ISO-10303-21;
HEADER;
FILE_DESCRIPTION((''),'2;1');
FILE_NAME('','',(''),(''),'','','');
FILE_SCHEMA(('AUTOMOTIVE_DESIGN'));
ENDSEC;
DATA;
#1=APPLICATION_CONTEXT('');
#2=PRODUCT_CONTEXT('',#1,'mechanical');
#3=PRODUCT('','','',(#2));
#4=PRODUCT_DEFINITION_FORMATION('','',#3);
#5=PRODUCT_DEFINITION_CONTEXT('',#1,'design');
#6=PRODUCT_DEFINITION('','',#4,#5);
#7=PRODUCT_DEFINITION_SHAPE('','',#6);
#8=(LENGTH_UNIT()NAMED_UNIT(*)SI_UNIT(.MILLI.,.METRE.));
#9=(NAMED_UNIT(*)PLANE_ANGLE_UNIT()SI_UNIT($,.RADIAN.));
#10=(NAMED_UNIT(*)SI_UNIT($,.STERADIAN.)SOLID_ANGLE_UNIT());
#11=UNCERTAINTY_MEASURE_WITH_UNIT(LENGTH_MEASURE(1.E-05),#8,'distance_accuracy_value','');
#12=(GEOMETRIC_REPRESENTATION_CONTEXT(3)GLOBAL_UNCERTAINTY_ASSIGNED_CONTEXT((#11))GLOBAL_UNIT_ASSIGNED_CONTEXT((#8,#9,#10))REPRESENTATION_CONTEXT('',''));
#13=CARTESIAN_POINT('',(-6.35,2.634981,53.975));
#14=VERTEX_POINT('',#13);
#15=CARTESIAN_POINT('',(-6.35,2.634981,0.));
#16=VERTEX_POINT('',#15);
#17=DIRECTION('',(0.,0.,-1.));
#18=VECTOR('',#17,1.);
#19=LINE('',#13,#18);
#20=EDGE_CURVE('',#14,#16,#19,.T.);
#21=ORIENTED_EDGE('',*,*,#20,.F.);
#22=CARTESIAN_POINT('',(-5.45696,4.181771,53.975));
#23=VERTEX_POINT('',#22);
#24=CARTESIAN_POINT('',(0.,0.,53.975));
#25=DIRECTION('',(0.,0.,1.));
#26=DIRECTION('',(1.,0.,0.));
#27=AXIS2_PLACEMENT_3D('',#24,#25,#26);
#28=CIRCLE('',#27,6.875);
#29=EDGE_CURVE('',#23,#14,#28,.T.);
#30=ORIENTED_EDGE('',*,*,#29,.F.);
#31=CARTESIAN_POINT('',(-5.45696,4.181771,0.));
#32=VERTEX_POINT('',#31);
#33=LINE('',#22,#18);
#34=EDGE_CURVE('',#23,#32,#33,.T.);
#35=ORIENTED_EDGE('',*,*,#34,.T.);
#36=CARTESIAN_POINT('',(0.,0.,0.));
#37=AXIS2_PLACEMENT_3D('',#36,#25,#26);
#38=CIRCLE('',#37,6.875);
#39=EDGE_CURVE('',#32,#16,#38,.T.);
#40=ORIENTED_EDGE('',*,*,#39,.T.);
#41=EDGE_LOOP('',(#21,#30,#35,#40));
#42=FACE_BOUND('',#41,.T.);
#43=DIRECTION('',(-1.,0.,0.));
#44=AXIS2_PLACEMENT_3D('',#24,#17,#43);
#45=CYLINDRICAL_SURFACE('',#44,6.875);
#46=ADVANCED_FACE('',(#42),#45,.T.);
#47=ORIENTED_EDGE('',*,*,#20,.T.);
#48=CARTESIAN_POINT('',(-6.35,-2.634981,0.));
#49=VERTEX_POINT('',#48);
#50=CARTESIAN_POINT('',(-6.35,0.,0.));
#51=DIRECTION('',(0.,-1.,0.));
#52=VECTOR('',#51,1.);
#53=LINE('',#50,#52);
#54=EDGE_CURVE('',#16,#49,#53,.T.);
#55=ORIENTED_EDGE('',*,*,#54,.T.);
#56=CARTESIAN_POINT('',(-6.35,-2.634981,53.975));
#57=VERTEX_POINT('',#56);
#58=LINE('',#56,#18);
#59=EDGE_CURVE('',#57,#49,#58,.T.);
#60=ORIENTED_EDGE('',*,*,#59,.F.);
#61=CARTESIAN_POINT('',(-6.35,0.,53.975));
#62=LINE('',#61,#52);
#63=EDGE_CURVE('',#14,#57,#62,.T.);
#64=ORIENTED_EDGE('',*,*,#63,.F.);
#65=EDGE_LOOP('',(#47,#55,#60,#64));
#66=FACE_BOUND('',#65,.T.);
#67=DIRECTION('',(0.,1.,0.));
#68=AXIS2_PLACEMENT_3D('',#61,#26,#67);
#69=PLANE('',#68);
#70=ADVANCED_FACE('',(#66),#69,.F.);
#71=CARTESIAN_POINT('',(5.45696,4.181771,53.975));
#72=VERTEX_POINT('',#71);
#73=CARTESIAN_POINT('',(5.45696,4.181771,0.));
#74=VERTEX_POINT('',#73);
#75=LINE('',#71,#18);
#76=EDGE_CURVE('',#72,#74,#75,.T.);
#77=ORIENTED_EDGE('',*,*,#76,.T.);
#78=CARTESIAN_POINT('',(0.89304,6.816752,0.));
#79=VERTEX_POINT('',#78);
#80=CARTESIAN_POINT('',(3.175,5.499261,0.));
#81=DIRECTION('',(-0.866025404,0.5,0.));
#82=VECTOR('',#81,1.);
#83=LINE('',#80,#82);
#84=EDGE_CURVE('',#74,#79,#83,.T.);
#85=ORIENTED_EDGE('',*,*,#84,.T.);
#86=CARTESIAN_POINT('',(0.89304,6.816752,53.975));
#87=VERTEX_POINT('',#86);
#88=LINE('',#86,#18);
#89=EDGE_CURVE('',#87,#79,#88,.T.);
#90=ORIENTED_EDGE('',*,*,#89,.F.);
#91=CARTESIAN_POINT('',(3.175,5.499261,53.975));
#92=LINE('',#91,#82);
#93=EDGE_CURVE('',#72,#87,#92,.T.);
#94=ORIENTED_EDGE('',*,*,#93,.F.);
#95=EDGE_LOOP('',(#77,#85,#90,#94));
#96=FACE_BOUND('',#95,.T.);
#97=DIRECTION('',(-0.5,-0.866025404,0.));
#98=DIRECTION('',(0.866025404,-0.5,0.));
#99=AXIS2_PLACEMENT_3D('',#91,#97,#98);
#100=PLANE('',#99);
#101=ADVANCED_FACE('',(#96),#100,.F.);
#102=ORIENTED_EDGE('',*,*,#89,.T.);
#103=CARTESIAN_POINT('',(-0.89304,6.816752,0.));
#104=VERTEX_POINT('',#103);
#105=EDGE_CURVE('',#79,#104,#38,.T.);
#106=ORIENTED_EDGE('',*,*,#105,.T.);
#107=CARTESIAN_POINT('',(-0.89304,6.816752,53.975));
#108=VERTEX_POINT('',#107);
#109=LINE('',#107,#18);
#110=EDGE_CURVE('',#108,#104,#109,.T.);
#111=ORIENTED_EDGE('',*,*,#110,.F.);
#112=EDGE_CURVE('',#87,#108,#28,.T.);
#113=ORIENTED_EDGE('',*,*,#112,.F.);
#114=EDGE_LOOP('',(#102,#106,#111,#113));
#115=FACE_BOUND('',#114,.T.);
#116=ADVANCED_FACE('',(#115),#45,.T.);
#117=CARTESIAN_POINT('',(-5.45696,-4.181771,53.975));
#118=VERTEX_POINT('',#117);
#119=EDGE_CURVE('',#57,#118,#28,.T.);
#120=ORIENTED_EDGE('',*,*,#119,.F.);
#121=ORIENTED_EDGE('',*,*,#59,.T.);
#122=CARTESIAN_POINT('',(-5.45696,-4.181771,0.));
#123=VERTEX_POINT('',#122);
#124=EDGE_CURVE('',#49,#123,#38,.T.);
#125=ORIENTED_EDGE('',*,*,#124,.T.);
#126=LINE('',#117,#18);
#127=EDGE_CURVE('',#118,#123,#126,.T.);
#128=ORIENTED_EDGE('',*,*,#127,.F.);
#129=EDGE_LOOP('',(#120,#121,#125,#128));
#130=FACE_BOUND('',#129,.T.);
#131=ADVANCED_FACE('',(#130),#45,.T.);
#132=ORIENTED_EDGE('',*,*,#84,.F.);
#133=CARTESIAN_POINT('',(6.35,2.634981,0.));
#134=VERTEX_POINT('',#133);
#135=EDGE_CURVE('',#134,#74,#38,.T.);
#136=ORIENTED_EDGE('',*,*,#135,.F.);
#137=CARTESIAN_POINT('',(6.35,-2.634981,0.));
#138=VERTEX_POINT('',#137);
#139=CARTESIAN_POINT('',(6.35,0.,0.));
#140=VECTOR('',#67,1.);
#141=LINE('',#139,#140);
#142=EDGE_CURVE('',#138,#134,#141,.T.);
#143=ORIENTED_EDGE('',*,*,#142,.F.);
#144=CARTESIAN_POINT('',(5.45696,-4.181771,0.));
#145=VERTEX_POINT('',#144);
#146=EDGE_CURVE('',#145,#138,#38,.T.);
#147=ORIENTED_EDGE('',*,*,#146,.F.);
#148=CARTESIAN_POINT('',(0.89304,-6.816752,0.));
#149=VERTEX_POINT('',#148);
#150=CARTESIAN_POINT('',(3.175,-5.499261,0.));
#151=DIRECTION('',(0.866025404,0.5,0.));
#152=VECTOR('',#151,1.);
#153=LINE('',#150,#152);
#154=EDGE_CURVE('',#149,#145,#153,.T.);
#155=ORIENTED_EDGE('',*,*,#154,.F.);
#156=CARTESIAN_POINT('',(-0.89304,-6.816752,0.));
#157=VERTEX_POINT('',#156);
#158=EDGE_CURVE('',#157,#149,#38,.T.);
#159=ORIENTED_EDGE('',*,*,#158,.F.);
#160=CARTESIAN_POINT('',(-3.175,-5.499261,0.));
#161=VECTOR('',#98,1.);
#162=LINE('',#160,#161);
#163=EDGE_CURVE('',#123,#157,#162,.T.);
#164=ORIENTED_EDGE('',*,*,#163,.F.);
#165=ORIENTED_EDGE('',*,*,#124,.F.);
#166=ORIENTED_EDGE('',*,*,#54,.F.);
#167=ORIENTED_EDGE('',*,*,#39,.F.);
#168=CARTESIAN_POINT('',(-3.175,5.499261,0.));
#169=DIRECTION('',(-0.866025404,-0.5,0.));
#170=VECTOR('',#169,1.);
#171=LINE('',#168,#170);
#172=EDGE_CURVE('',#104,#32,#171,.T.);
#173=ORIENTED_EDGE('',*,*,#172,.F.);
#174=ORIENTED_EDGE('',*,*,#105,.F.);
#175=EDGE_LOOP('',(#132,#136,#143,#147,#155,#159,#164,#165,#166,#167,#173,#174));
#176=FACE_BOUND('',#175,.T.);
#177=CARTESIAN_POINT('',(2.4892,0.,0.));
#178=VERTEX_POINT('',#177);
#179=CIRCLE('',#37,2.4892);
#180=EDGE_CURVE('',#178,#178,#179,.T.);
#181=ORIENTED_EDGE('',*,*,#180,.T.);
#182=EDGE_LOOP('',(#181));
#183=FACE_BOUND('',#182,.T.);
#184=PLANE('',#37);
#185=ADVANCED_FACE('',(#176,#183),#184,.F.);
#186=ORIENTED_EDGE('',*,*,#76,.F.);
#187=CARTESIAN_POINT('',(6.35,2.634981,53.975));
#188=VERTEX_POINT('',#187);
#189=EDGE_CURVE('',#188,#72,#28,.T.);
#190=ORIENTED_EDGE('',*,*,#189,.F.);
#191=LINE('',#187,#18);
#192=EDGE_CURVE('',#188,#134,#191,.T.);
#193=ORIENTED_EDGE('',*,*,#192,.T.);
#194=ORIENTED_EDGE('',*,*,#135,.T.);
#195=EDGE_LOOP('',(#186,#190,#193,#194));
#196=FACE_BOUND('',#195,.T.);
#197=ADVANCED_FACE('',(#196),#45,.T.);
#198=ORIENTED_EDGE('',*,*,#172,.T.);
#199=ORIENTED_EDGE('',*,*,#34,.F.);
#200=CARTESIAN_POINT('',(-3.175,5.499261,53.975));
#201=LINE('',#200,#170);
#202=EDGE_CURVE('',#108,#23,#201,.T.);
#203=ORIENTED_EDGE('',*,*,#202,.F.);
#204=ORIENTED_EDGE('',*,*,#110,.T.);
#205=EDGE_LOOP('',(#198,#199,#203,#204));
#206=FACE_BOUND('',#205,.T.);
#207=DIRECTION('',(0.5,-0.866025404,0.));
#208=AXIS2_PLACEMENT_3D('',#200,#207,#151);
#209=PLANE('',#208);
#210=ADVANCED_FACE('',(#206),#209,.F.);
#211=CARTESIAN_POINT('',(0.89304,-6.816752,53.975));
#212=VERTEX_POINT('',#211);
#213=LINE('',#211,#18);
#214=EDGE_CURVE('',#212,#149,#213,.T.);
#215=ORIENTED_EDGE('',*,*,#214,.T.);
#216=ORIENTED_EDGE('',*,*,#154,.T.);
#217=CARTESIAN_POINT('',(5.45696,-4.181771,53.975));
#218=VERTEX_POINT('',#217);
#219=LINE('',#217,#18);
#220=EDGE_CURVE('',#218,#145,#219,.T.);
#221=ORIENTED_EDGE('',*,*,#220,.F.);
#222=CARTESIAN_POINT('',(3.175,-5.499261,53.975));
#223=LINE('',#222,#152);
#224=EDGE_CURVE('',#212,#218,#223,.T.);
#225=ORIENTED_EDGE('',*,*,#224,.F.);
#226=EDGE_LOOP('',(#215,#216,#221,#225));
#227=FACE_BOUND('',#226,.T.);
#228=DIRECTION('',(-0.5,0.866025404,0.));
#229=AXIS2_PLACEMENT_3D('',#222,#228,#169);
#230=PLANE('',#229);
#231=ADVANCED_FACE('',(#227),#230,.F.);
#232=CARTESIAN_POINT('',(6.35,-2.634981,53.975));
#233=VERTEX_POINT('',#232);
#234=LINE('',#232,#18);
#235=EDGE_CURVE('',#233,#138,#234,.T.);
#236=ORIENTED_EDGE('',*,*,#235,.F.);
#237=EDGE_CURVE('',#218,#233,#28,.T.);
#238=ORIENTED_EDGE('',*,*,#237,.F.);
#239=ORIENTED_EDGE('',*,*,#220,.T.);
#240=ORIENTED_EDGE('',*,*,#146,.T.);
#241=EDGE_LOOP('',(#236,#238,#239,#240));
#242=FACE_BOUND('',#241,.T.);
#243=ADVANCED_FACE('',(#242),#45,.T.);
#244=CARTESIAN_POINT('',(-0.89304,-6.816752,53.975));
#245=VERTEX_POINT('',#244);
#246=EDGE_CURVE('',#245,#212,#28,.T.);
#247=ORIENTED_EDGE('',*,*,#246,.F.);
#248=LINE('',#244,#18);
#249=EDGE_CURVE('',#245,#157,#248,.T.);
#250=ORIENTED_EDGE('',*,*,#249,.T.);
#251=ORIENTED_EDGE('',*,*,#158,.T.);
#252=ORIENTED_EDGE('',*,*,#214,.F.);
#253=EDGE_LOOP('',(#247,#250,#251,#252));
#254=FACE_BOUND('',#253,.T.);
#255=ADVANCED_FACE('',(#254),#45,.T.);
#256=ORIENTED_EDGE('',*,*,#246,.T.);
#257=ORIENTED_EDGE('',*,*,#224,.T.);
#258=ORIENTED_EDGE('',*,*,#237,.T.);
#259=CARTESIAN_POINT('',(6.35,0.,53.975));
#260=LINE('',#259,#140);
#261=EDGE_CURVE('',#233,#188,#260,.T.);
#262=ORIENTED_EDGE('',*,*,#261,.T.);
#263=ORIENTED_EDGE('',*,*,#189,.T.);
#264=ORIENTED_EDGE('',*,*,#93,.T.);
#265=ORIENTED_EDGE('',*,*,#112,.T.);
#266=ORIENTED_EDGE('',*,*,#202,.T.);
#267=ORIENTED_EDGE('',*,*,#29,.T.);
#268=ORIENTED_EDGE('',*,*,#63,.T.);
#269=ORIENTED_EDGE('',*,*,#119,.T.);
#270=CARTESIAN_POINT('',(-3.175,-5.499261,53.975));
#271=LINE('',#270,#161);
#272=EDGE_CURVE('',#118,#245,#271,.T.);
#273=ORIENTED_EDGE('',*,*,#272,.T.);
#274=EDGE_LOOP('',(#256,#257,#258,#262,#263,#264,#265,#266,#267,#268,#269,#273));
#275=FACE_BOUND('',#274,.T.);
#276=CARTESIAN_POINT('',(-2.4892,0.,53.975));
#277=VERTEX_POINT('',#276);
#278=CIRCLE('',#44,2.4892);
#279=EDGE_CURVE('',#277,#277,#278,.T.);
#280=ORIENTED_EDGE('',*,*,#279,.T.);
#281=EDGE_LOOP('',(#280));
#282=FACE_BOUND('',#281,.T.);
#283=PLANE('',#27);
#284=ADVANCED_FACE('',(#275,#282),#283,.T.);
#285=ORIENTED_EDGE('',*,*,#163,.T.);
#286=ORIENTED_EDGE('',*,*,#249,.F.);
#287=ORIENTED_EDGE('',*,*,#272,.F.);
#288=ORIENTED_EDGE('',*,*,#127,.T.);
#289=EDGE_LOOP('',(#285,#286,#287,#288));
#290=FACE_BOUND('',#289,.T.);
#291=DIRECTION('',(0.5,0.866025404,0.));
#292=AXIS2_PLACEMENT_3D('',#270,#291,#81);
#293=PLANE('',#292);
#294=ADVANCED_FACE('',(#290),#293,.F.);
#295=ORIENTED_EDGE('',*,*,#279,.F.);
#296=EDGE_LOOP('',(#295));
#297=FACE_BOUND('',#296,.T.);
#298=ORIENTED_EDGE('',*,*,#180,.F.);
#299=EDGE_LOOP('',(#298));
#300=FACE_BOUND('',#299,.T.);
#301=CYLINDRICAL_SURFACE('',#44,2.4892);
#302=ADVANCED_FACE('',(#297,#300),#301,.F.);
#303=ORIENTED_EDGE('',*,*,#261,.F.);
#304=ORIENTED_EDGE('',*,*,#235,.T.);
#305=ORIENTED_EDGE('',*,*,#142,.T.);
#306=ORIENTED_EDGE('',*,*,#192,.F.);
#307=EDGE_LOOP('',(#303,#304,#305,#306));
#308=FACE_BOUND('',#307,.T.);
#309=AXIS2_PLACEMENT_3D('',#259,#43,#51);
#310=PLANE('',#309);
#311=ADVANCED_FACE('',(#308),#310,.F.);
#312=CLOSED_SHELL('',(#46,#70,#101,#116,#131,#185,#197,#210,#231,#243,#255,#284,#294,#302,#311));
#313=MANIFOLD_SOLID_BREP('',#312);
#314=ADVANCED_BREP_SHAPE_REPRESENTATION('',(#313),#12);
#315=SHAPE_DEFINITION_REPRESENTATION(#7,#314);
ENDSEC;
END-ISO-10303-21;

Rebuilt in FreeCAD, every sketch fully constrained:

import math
import FreeCAD as App
import Part
import Sketcher

V = App.Vector
Q = App.Units.Quantity

doc = App.newDocument("Part")
body = doc.addObject("PartDesign::Body", "Body")

# Sketch on XY plane
sketch1 = doc.addObject("Sketcher::SketchObject", "Sketch")
body.addObject(sketch1)
sketch1.AttachmentSupport = (doc.XY_Plane, [""])
sketch1.MapMode = "FlatFace"
sketch1.addGeometry([
    Part.ArcOfCircle(Part.Circle(V(0, 0, 0), V(0, 0, 1), 6.875), math.radians(22.536379), math.radians(37.463621)),  # 0
    Part.LineSegment(V(5.45696, 4.181771, 0), V(0.89304, 6.816752, 0)),  # 1
    Part.ArcOfCircle(Part.Circle(V(0, 0, 0), V(0, 0, 1), 6.875), math.radians(82.536379), math.radians(97.463621)),  # 2
    Part.LineSegment(V(-0.89304, 6.816752, 0), V(-5.45696, 4.181771, 0)),  # 3
    Part.ArcOfCircle(Part.Circle(V(0, 0, 0), V(0, 0, 1), 6.875), math.radians(142.536379), math.radians(157.463621)),  # 4
    Part.LineSegment(V(-6.35, 2.634981, 0), V(-6.35, -2.634981, 0)),  # 5
    Part.ArcOfCircle(Part.Circle(V(0, 0, 0), V(0, 0, 1), 6.875), math.radians(-157.463621), math.radians(-142.536379)),  # 6
    Part.LineSegment(V(-5.45696, -4.181771, 0), V(-0.89304, -6.816752, 0)),  # 7
    Part.ArcOfCircle(Part.Circle(V(0, 0, 0), V(0, 0, 1), 6.875), math.radians(-97.463621), math.radians(-82.536379)),  # 8
    Part.LineSegment(V(0.89304, -6.816752, 0), V(5.45696, -4.181771, 0)),  # 9
    Part.ArcOfCircle(Part.Circle(V(0, 0, 0), V(0, 0, 1), 6.875), math.radians(-37.463621), math.radians(-22.536379)),  # 10
    Part.LineSegment(V(6.35, -2.634981, 0), V(6.35, 2.634981, 0)),  # 11
], False)
sketch1.addConstraint([
    Sketcher.Constraint("Coincident", 0, 2, 1, 1),
    Sketcher.Constraint("Coincident", 1, 2, 2, 1),
    Sketcher.Constraint("Coincident", 2, 2, 3, 1),
    Sketcher.Constraint("Coincident", 3, 2, 4, 1),
    Sketcher.Constraint("Coincident", 4, 2, 5, 1),
    Sketcher.Constraint("Coincident", 5, 2, 6, 1),
    Sketcher.Constraint("Coincident", 6, 2, 7, 1),
    Sketcher.Constraint("Coincident", 7, 2, 8, 1),
    Sketcher.Constraint("Coincident", 8, 2, 9, 1),
    Sketcher.Constraint("Coincident", 9, 2, 10, 1),
    Sketcher.Constraint("Coincident", 10, 2, 11, 1),
    Sketcher.Constraint("Coincident", 11, 2, 0, 1),
    Sketcher.Constraint("Vertical", 5),
    Sketcher.Constraint("Vertical", 11),
    Sketcher.Constraint("Coincident", 0, 3, -1, 1),
    Sketcher.Constraint("Coincident", 2, 3, -1, 1),
    Sketcher.Constraint("Coincident", 4, 3, -1, 1),
    Sketcher.Constraint("Coincident", 6, 3, -1, 1),
    Sketcher.Constraint("Coincident", 8, 3, -1, 1),
    Sketcher.Constraint("Coincident", 10, 3, -1, 1),
    Sketcher.Constraint("Equal", 0, 2),
    Sketcher.Constraint("Equal", 2, 4),
    Sketcher.Constraint("Equal", 4, 6),
    Sketcher.Constraint("Equal", 6, 8),
    Sketcher.Constraint("Equal", 8, 10),
    Sketcher.Constraint("Parallel", 1, 7),
    Sketcher.Constraint("Parallel", 3, 9),
    Sketcher.Constraint("Horizontal", 1, 2, 2, 2),
    Sketcher.Constraint("Horizontal", 0, 2, 3, 2),
    Sketcher.Constraint("Horizontal", 7, 2, 8, 2),
    Sketcher.Constraint("Horizontal", 5, 2, 10, 2),
    Sketcher.Constraint("Vertical", 3, 2, 6, 2),
    Sketcher.Constraint("Angle", 1, Q("150 deg")),
    Sketcher.Constraint("DistanceX", 4, 2, -1, 1, Q("0.25 in")),
    Sketcher.Constraint("Radius", 0, Q("6.875 mm")),
    Sketcher.Constraint("DistanceX", 2, 2, 0, 2, Q("0.25 in")),
])
pad1 = doc.addObject("PartDesign::Pad", "Pad")
body.addObject(pad1)
pad1.Profile = sketch1
pad1.Length = Q("2.125 in")

# Sketch on XY plane
sketch2 = doc.addObject("Sketcher::SketchObject", "Sketch001")
body.addObject(sketch2)
sketch2.AttachmentSupport = (doc.XY_Plane, [""])
sketch2.MapMode = "FlatFace"
sketch2.addGeometry(Part.Circle(V(0, 0, 0), V(0, 0, 1), 2.4892), False)
sketch2.addConstraint([
    Sketcher.Constraint("Coincident", 0, 3, -1, 1),
    Sketcher.Constraint("Diameter", 0, Q("0.196 in")),
])
pocket1 = doc.addObject("PartDesign::Pocket", "Pocket")
body.addObject(pocket1)
pocket1.Profile = sketch2
pocket1.Type = "ThroughAll"
pocket1.Midplane = True

doc.recompute()
